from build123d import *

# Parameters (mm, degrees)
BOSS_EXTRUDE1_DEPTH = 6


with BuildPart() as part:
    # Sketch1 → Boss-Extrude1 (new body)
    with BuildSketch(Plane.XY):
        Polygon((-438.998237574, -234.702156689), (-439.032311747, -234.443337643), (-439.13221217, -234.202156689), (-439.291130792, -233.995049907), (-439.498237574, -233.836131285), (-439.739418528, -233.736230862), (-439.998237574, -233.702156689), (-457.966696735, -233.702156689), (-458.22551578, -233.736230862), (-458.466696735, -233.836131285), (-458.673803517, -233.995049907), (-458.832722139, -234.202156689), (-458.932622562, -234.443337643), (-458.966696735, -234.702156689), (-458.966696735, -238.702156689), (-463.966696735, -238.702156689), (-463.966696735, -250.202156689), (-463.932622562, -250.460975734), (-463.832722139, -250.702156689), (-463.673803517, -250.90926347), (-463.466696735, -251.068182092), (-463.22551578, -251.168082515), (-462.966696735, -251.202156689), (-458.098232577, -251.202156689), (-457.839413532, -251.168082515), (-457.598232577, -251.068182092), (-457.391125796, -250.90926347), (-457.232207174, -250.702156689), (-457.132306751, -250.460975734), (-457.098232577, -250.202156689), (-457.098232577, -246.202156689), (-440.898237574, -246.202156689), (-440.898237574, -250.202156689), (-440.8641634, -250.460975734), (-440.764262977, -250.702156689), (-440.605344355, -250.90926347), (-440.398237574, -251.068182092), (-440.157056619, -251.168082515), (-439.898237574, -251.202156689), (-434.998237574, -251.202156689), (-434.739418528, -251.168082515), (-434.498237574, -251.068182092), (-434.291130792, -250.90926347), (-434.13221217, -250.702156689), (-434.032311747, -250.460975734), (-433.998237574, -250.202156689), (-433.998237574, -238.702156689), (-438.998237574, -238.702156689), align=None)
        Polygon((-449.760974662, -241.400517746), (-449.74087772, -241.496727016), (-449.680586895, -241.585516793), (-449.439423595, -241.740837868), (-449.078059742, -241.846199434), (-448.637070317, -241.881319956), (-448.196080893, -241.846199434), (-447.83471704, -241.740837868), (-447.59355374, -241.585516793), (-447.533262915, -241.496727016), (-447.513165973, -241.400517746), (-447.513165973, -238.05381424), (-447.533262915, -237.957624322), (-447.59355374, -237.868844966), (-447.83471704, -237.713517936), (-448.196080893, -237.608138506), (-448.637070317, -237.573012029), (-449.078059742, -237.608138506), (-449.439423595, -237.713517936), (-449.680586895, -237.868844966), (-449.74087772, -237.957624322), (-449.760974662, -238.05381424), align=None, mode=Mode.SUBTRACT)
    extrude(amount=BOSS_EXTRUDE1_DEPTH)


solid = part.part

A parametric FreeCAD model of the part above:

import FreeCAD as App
import Part
import Sketcher
Q = App.Units.Quantity


def add_polygon(sketch, points):
    """Adds a closed chain of lines whose ends are joined by coincident constraints."""
    first, n = sketch.GeometryCount, len(points)
    for a, b in zip(points, points[1:] + points[:1]):
        sketch.addGeometry(Part.LineSegment(App.Vector(*a, 0), App.Vector(*b, 0)), False)
    for i in range(n):
        sketch.addConstraint(Sketcher.Constraint("Coincident", first + i, 2, first + (i + 1) % n, 1))

doc = App.newDocument("Part")
body = doc.addObject("PartDesign::Body", "Body")

sketch1 = body.newObject("Sketcher::SketchObject", "Sketch")
sketch1.AttachmentSupport = (doc.getObject("XY_Plane"), [""])
sketch1.MapMode = "FlatFace"
add_polygon(sketch1, [(-438.998238, -234.702157), (-439.032312, -234.443338), (-439.132212, -234.202157), (-439.291131, -233.99505), (-439.498238, -233.836131), (-439.739419, -233.736231), (-439.998238, -233.702157), (-457.966697, -233.702157), (-458.225516, -233.736231), (-458.466697, -233.836131), (-458.673804, -233.99505), (-458.832722, -234.202157), (-458.932623, -234.443338), (-458.966697, -234.702157), (-458.966697, -238.702157), (-463.966697, -238.702157), (-463.966697, -250.202157), (-463.932623, -250.460976), (-463.832722, -250.702157), (-463.673804, -250.909263), (-463.466697, -251.068182), (-463.225516, -251.168083), (-462.966697, -251.202157), (-458.098233, -251.202157), (-457.839414, -251.168083), (-457.598233, -251.068182), (-457.391126, -250.909263), (-457.232207, -250.702157), (-457.132307, -250.460976), (-457.098233, -250.202157), (-457.098233, -246.202157), (-440.898238, -246.202157), (-440.898238, -250.202157), (-440.864163, -250.460976), (-440.764263, -250.702157), (-440.605344, -250.909263), (-440.398238, -251.068182), (-440.157057, -251.168083), (-439.898238, -251.202157), (-434.998238, -251.202157), (-434.739419, -251.168083), (-434.498238, -251.068182), (-434.291131, -250.909263), (-434.132212, -250.702157), (-434.032312, -250.460976), (-433.998238, -250.202157), (-433.998238, -238.702157), (-438.998238, -238.702157)])
add_polygon(sketch1, [(-449.740878, -241.496727), (-449.760975, -241.400518), (-449.760975, -238.053814), (-449.740878, -237.957624), (-449.680587, -237.868845), (-449.439424, -237.713518), (-449.07806, -237.608139), (-448.63707, -237.573012), (-448.196081, -237.608139), (-447.834717, -237.713518), (-447.593554, -237.868845), (-447.533263, -237.957624), (-447.513166, -238.053814), (-447.513166, -241.400518), (-447.533263, -241.496727), (-447.593554, -241.585517), (-447.834717, -241.740838), (-448.196081, -241.846199), (-448.63707, -241.88132), (-449.07806, -241.846199), (-449.439424, -241.740838), (-449.680587, -241.585517)])
sketch1.addConstraint([
    Sketcher.Constraint("Horizontal", 6),
    Sketcher.Constraint("Vertical", 13),
    Sketcher.Constraint("Horizontal", 14),
    Sketcher.Constraint("Vertical", 15),
    Sketcher.Constraint("Horizontal", 22),
    Sketcher.Constraint("Vertical", 29),
    Sketcher.Constraint("Horizontal", 30),
    Sketcher.Constraint("Vertical", 31),
    Sketcher.Constraint("Horizontal", 38),
    Sketcher.Constraint("Vertical", 45),
    Sketcher.Constraint("Horizontal", 46),
    Sketcher.Constraint("Vertical", 47),
    Sketcher.Constraint("Vertical", 49),
    Sketcher.Constraint("Vertical", 60),
    Sketcher.Constraint("Perpendicular", 0, 7),
    Sketcher.Constraint("Perpendicular", 1, 8),
    Sketcher.Constraint("Perpendicular", 2, 9),
    Sketcher.Constraint("Perpendicular", 3, 10),
    Sketcher.Constraint("Perpendicular", 4, 11),
    Sketcher.Constraint("Perpendicular", 5, 12),
    Sketcher.Constraint("Perpendicular", 7, 16),
    Sketcher.Constraint("Perpendicular", 8, 17),
    Sketcher.Constraint("Perpendicular", 9, 18),
    Sketcher.Constraint("Perpendicular", 10, 19),
    Sketcher.Constraint("Perpendicular", 11, 20),
    Sketcher.Constraint("Perpendicular", 12, 21),
    Sketcher.Constraint("Perpendicular", 16, 23),
    Sketcher.Constraint("Perpendicular", 17, 24),
    Sketcher.Constraint("Perpendicular", 18, 25),
    Sketcher.Constraint("Perpendicular", 19, 26),
    Sketcher.Constraint("Perpendicular", 20, 27),
    Sketcher.Constraint("Perpendicular", 21, 28),
    Sketcher.Constraint("Perpendicular", 23, 32),
    Sketcher.Constraint("Perpendicular", 24, 33),
    Sketcher.Constraint("Perpendicular", 25, 34),
    Sketcher.Constraint("Perpendicular", 26, 35),
    Sketcher.Constraint("Perpendicular", 27, 36),
    Sketcher.Constraint("Perpendicular", 28, 37),
    Sketcher.Constraint("Perpendicular", 32, 39),
    Sketcher.Constraint("Perpendicular", 33, 40),
    Sketcher.Constraint("Perpendicular", 34, 41),
    Sketcher.Constraint("Perpendicular", 35, 42),
    Sketcher.Constraint("Perpendicular", 36, 43),
    Sketcher.Constraint("Perpendicular", 37, 44),
    Sketcher.Constraint("Horizontal", 4, 2, 7, 2),
    Sketcher.Constraint("Horizontal", 3, 2, 8, 2),
    Sketcher.Constraint("Horizontal", 2, 2, 9, 2),
    Sketcher.Constraint("Horizontal", 1, 2, 10, 2),
    Sketcher.Constraint("Horizontal", 0, 2, 11, 2),
    Sketcher.Constraint("Horizontal", 20, 2, 23, 2),
    Sketcher.Constraint("Horizontal", 19, 2, 24, 2),
    Sketcher.Constraint("Horizontal", 18, 2, 25, 2),
    Sketcher.Constraint("Horizontal", 17, 2, 26, 2),
    Sketcher.Constraint("Horizontal", 16, 2, 27, 2),
    Sketcher.Constraint("Horizontal", 15, 2, 28, 2),
    Sketcher.Constraint("Horizontal", 28, 2, 31, 2),
    Sketcher.Constraint("Horizontal", 27, 2, 32, 2),
    Sketcher.Constraint("Horizontal", 26, 2, 33, 2),
    Sketcher.Constraint("Horizontal", 25, 2, 34, 2),
    Sketcher.Constraint("Horizontal", 24, 2, 35, 2),
    Sketcher.Constraint("Horizontal", 23, 2, 36, 2),
    Sketcher.Constraint("Horizontal", 22, 2, 37, 2),
    Sketcher.Constraint("Horizontal", 36, 2, 39, 2),
    Sketcher.Constraint("Horizontal", 35, 2, 40, 2),
    Sketcher.Constraint("Horizontal", 34, 2, 41, 2),
    Sketcher.Constraint("Horizontal", 33, 2, 42, 2),
    Sketcher.Constraint("Horizontal", 32, 2, 43, 2),
    Sketcher.Constraint("Horizontal", 31, 2, 44, 2),
    Sketcher.Constraint("Horizontal", 14, 2, 45, 2),
    Sketcher.Constraint("Horizontal", 12, 2, 47, 2),
    Sketcher.Constraint("Horizontal", 53, 2, 55, 2),
    Sketcher.Constraint("Horizontal", 52, 2, 56, 2),
    Sketcher.Constraint("Horizontal", 51, 2, 57, 2),
    Sketcher.Constraint("Horizontal", 50, 2, 58, 2),
    Sketcher.Constraint("Horizontal", 49, 2, 59, 2),
    Sketcher.Constraint("Horizontal", 48, 2, 60, 2),
    Sketcher.Constraint("Horizontal", 64, 2, 66, 2),
    Sketcher.Constraint("Horizontal", 63, 2, 67, 2),
    Sketcher.Constraint("Horizontal", 62, 2, 68, 2),
    Sketcher.Constraint("Horizontal", 61, 2, 69, 2),
    Sketcher.Constraint("Vertical", 58, 2, 61, 2),
    Sketcher.Constraint("Vertical", 57, 2, 62, 2),
    Sketcher.Constraint("Vertical", 56, 2, 63, 2),
    Sketcher.Constraint("Vertical", 55, 2, 64, 2),
    Sketcher.Constraint("Vertical", 54, 2, 65, 2),
    Sketcher.Constraint("Vertical", 53, 2, 66, 2),
    Sketcher.Constraint("Vertical", 52, 2, 67, 2),
    Sketcher.Constraint("Vertical", 51, 2, 68, 2),
    Sketcher.Constraint("Vertical", 50, 2, 69, 2),
    Sketcher.Constraint("Equal", 14, 46),
    Sketcher.Constraint("Equal", 13, 29),
    Sketcher.Constraint("Equal", 0, 1),
    Sketcher.Constraint("Equal", 1, 2),
    Sketcher.Constraint("Equal", 2, 3),
    Sketcher.Constraint("Equal", 3, 4),
    Sketcher.Constraint("Equal", 4, 5),
    Sketcher.Constraint("Equal", 5, 7),
    Sketcher.Constraint("Equal", 7, 8),
    Sketcher.Constraint("Equal", 8, 9),
    Sketcher.Constraint("Equal", 12, 16),
    Sketcher.Constraint("Equal", 16, 17),
    Sketcher.Constraint("Equal", 17, 18),
    Sketcher.Constraint("Equal", 18, 19),
    Sketcher.Constraint("Equal", 19, 20),
    Sketcher.Constraint("Equal", 20, 21),
    Sketcher.Constraint("Equal", 54, 55),
    Sketcher.Constraint("Equal", 53, 56),
    Sketcher.Constraint("Equal", 52, 57),
    Sketcher.Constraint("Equal", 51, 58),
    Sketcher.Constraint("Equal", 50, 59),
    Sketcher.Constraint("Equal", 55, 65),
    Sketcher.Constraint("DistanceX", 14, 2, 14, 1, Q("5 mm")),
    Sketcher.Constraint("DistanceY", 13, 2, 13, 1, Q("4 mm")),
    Sketcher.Constraint("DistanceX", 38, 1, 38, 2, Q("4.9 mm")),
    Sketcher.Constraint("DistanceY", 15, 2, 15, 1, Q("11.5 mm")),
    Sketcher.Constraint("Angle", 0, Q("97.5 deg")),
    Sketcher.Constraint("Angle", 1, Q("112.5 deg")),
    Sketcher.Constraint("Angle", 2, Q("127.5 deg")),
    Sketcher.Constraint("DistanceX", 6, 2, 6, 1, Q("17.968459 mm")),
    Sketcher.Constraint("DistanceY", 64, 2, -1, 1, Q("241.846199 mm")),
    Sketcher.Constraint("Distance", 64, Q("0.376411 mm")),
    Sketcher.Constraint("DistanceX", 22, 1, 22, 2, Q("4.868464 mm")),
    Sketcher.Constraint("DistanceX", 30, 1, 30, 2, Q("16.199995 mm")),
    Sketcher.Constraint("DistanceY", 49, 1, 49, 2, Q("3.346704 mm")),
    Sketcher.Constraint("DistanceX", 0, 2, -1, 1, Q("439.032312 mm")),
    Sketcher.Constraint("DistanceY", 2, 2, -1, 1, Q("233.99505 mm")),
    Sketcher.Constraint("DistanceX", 53, 2, -1, 1, Q("449.07806 mm")),
    Sketcher.Constraint("DistanceY", 53, 2, -1, 1, Q("237.608139 mm")),
    Sketcher.Constraint("DistanceX", 54, 2, -1, 1, Q("448.63707 mm")),
    Sketcher.Constraint("DistanceY", 65, 2, -1, 1, Q("241.88132 mm")),
    Sketcher.Constraint("Distance", 48, Q("0.098286 mm")),
    Sketcher.Constraint("Distance", 50, Q("0.098267 mm")),
    Sketcher.Constraint("Distance", 51, Q("0.107316 mm")),
    Sketcher.Constraint("Distance", 52, Q("0.286856 mm")),
    Sketcher.Constraint("Distance", 53, Q("0.376416 mm")),
    Sketcher.Constraint("Distance", 62, Q("0.107325 mm")),
    Sketcher.Constraint("Distance", 63, Q("0.286853 mm")),
    Sketcher.Constraint("DistanceX", 48, 2, -1, 1, Q("449.760975 mm")),
    Sketcher.Constraint("DistanceX", 50, 2, -1, 1, Q("449.740878 mm")),
    Sketcher.Constraint("DistanceX", 51, 2, -1, 1, Q("449.680587 mm")),
])
pad1 = body.newObject("PartDesign::Pad", "Pad")
pad1.Profile = sketch1
pad1.Length = 6

doc.recompute()
